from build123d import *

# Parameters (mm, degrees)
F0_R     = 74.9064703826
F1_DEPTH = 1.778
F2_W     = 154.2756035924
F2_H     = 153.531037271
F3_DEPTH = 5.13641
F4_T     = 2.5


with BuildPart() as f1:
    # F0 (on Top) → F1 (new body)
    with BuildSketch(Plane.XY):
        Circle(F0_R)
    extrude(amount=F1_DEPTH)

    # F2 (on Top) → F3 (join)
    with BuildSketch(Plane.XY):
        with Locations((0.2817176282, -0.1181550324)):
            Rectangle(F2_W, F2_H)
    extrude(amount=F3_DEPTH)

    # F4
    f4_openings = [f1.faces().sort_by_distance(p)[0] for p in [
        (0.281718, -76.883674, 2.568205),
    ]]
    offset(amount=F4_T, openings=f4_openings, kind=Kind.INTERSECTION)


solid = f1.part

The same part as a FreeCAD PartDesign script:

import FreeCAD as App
import Part
import Sketcher
from FreeCAD import Vector
Q = App.Units.Quantity


def faces_at(feature, points):
    """Names of the faces that lie closest to the given points."""
    faces = feature.Shape.Faces
    near = lambda p: min(range(len(faces)), key=lambda i: faces[i].distToShape(Part.Vertex(*p))[0])
    return sorted({f"Face{near(p) + 1}" for p in points})

doc = App.newDocument("Part")
params = doc.addObject("Spreadsheet::Sheet", "Params")
for row, (alias, value) in enumerate([
    ("pad1_length", "1.778 mm"),
    ("pad2_length", "5.13641 mm"),
    ("thickness_wall", "2.5 mm"),
], start=1):
    params.set(f"A{row}", alias)
    params.set(f"B{row}", "=" + value)
    params.setAlias(f"B{row}", alias)

body = doc.addObject("PartDesign::Body", "Body")

sketch1 = body.newObject("Sketcher::SketchObject", "Sketch")
sketch1.AttachmentSupport = (doc.getObject("XY_Plane"), [""])
sketch1.MapMode = "FlatFace"
sketch1.addGeometry(Part.Circle(Vector(0, 0, 0), Vector(0, 0, 1), 74.90647), False)
sketch1.addConstraint([
    Sketcher.Constraint("Coincident", 0, 3, -1, 1),
    Sketcher.Constraint("Diameter", 0, Q("149.812941 mm")),
])
pad1 = body.newObject("PartDesign::Pad", "Pad")
pad1.Profile = sketch1
pad1.setExpression("Length", "Params.pad1_length")

sketch2 = body.newObject("Sketcher::SketchObject", "Sketch001")
sketch2.AttachmentSupport = (doc.getObject("XY_Plane"), [""])
sketch2.MapMode = "FlatFace"
sketch2.addGeometry([
    Part.LineSegment(Vector(-76.856084, 76.647364, 0), Vector(-76.856084, -76.883674, 0)),
    Part.LineSegment(Vector(-76.856084, -76.883674, 0), Vector(77.419519, -76.883674, 0)),
    Part.LineSegment(Vector(77.419519, -76.883674, 0), Vector(77.419519, 76.647364, 0)),
    Part.LineSegment(Vector(77.419519, 76.647364, 0), Vector(-76.856084, 76.647364, 0)),
], False)
sketch2.addConstraint([
    Sketcher.Constraint("Coincident", 0, 2, 1, 1),
    Sketcher.Constraint("Coincident", 1, 2, 2, 1),
    Sketcher.Constraint("Coincident", 2, 2, 3, 1),
    Sketcher.Constraint("Coincident", 3, 2, 0, 1),
    Sketcher.Constraint("Vertical", 0),
    Sketcher.Constraint("Horizontal", 1),
    Sketcher.Constraint("Vertical", 2),
    Sketcher.Constraint("Horizontal", 3),
    Sketcher.Constraint("DistanceX", 1, 1, 1, 2, Q("154.275604 mm")),
    Sketcher.Constraint("DistanceY", 0, 2, 0, 1, Q("153.531037 mm")),
    Sketcher.Constraint("DistanceX", -1, 1, 1, 2, Q("77.419519 mm")),
    Sketcher.Constraint("DistanceY", 0, 2, -1, 1, Q("76.883674 mm")),
])
pad2 = body.newObject("PartDesign::Pad", "Pad001")
pad2.Profile = sketch2
pad2.setExpression("Length", "Params.pad2_length")
doc.recompute()

thickness = body.newObject("PartDesign::Thickness", "Thickness")
thickness.Base = (pad2, faces_at(pad2, [(0.282, -76.884, 2.568)]))
thickness.setExpression("Value", "Params.thickness_wall")
thickness.Reversed = False
thickness.Join = "Intersection"

doc.recompute()
